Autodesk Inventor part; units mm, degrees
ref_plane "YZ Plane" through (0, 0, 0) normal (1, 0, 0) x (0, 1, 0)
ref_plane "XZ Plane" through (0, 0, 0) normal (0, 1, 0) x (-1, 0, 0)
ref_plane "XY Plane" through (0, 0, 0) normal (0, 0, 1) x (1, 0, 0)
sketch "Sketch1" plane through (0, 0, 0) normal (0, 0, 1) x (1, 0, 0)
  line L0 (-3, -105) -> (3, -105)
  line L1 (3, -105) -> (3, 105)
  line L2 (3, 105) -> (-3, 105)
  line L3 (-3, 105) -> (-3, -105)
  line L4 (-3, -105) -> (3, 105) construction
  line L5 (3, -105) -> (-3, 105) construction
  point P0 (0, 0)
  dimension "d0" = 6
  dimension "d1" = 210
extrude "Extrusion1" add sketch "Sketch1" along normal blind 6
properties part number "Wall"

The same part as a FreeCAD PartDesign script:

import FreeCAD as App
import Part
import Sketcher
from FreeCAD import Vector
Q = App.Units.Quantity


def add_polygon(sketch, points):
    """Adds a closed chain of lines whose ends are joined by coincident constraints."""
    first, n = sketch.GeometryCount, len(points)
    for a, b in zip(points, points[1:] + points[:1]):
        sketch.addGeometry(Part.LineSegment(App.Vector(*a, 0), App.Vector(*b, 0)), False)
    for i in range(n):
        sketch.addConstraint(Sketcher.Constraint("Coincident", first + i, 2, first + (i + 1) % n, 1))

doc = App.newDocument("Part")
params = doc.addObject("Spreadsheet::Sheet", "Params")
for row, (alias, value) in enumerate([
    ("sketch1_width", "6 mm"),
    ("sketch1_height", "210 mm"),
    ("pad1_length", "6 mm"),
], start=1):
    params.set(f"A{row}", alias)
    params.set(f"B{row}", "=" + value)
    params.setAlias(f"B{row}", alias)

body = doc.addObject("PartDesign::Body", "Body")

# Sketch on XY plane
sketch1 = body.newObject("Sketcher::SketchObject", "Sketch")
sketch1.AttachmentSupport = (doc.getObject("XY_Plane"), [""])
sketch1.MapMode = "FlatFace"
add_polygon(sketch1, [(-3, 105), (-3, -105), (3, -105), (3, 105)])  # lines 0-3
sketch1.addConstraint([
    Sketcher.Constraint("Vertical", 0),
    Sketcher.Constraint("Horizontal", 1),
    Sketcher.Constraint("Vertical", 2),
    Sketcher.Constraint("Horizontal", 3),
    Sketcher.Constraint("Symmetric", 0, 2, 2, 2, -1, 1),
    Sketcher.Constraint("DistanceX", 1, 1, 1, 2, Q("6 mm")),
    Sketcher.Constraint("DistanceY", 0, 2, 0, 1, Q("210 mm")),
])
sketch1.setExpression("Constraints[9]", "Params.sketch1_width")
sketch1.setExpression("Constraints[10]", "Params.sketch1_height")
pad1 = body.newObject("PartDesign::Pad", "Pad")
pad1.Profile = sketch1
pad1.setExpression("Length", "Params.pad1_length")

doc.recompute()
